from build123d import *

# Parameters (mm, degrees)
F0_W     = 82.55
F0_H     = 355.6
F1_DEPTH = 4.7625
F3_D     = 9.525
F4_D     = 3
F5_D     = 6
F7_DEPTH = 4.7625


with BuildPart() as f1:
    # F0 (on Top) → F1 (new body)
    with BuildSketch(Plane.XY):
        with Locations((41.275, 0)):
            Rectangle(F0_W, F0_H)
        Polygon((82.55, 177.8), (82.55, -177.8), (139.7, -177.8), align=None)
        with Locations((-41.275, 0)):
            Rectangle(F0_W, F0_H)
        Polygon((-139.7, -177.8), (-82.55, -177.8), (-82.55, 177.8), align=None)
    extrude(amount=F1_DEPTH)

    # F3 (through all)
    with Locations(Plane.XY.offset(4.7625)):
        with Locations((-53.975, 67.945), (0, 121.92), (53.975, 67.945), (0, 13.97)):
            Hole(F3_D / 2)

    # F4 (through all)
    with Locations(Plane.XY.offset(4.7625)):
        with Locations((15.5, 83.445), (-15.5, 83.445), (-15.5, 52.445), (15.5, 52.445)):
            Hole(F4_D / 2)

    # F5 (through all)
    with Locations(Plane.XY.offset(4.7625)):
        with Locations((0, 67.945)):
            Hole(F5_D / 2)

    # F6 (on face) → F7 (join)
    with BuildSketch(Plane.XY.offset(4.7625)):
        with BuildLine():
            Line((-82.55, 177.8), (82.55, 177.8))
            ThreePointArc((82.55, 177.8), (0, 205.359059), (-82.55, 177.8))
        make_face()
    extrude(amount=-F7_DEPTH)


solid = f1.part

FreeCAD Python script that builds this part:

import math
import FreeCAD as App
import Part
import Sketcher
Q = App.Units.Quantity

doc = App.newDocument("Part")
body = doc.addObject("PartDesign::Body", "Body")

sketch1 = doc.addObject("Sketcher::SketchObject", "Sketch")
body.addObject(sketch1)
sketch1.AttachmentSupport = (doc.XY_Plane, [""])
sketch1.MapMode = "FlatFace"
sketch1.addGeometry([
    Part.LineSegment(App.Vector(140, -178, 0), App.Vector(83, 178, 0)),
    Part.LineSegment(App.Vector(83, 178, 0), App.Vector(-83, 178, 0)),
    Part.LineSegment(App.Vector(-83, 178, 0), App.Vector(-140, -178, 0)),
    Part.LineSegment(App.Vector(-140, -178, 0), App.Vector(140, -178, 0)),
], False)
sketch1.addConstraint([
    Sketcher.Constraint("Coincident", 0, 2, 1, 1),
    Sketcher.Constraint("Coincident", 1, 2, 2, 1),
    Sketcher.Constraint("Coincident", 2, 2, 3, 1),
    Sketcher.Constraint("Coincident", 3, 2, 0, 1),
    Sketcher.Constraint("Horizontal", 1),
    Sketcher.Constraint("Horizontal", 3),
    Sketcher.Constraint("Equal", 0, 2),
    Sketcher.Constraint("DistanceX", 3, 1, 3, 2, Q("11 in")),
    Sketcher.Constraint("DistanceX", 1, 2, 1, 1, Q("6.5 in")),
    Sketcher.Constraint("DistanceY", -1, 1, 0, 2, Q("7 in")),
    Sketcher.Constraint("DistanceY", 2, 2, -1, 1, Q("7 in")),
    Sketcher.Constraint("DistanceX", 2, 2, -1, 1, Q("5.5 in")),
])
pad1 = doc.addObject("PartDesign::Pad", "Pad")
body.addObject(pad1)
pad1.Profile = sketch1
pad1.Length = Q("0.1875 in")

sketch2 = doc.addObject("Sketcher::SketchObject", "Sketch001")
body.addObject(sketch2)
sketch2.AttachmentSupport = (doc.XY_Plane, [""])
sketch2.MapMode = "FlatFace"
sketch2.AttachmentOffset = App.Placement(App.Vector(0, 0, 0.1875 * 25.4), App.Rotation())
sketch2.addGeometry([
    Part.Circle(App.Vector(-54, 67.9, 0), App.Vector(0, 0, 1), 4.8),
    Part.Circle(App.Vector(0, 121.9, 0), App.Vector(0, 0, 1), 4.8),
    Part.Circle(App.Vector(54, 67.9, 0), App.Vector(0, 0, 1), 4.8),
    Part.Circle(App.Vector(0, 14, 0), App.Vector(0, 0, 1), 4.8),
], False)
sketch2.addConstraint([
    Sketcher.Constraint("Equal", 0, 1),
    Sketcher.Constraint("Equal", 1, 2),
    Sketcher.Constraint("Equal", 2, 3),
    Sketcher.Constraint("Symmetric", 0, 3, 2, 3, -2),
    Sketcher.Constraint("PointOnObject", 1, 3, -2),
    Sketcher.Constraint("PointOnObject", 3, 3, -2),
    Sketcher.Constraint("Diameter", 0, Q("0.375 in")),
    Sketcher.Constraint("DistanceY", -1, 1, 1, 3, Q("4.8 in")),
    Sketcher.Constraint("DistanceY", -1, 1, 3, 3, Q("0.55 in")),
    Sketcher.Constraint("DistanceX", 0, 3, 2, 3, Q("4.25 in")),
    Sketcher.Constraint("DistanceY", -1, 1, 0, 3, Q("2.675 in")),
])
doc.recompute()
hole = doc.addObject("PartDesign::Hole", "Hole")
body.addObject(hole)
hole.Profile = sketch2
hole.ThreadType = "None"
hole.Diameter = Q("0.375 in")
hole.DepthType = "ThroughAll"

sketch3 = doc.addObject("Sketcher::SketchObject", "Sketch002")
body.addObject(sketch3)
sketch3.AttachmentSupport = (doc.XY_Plane, [""])
sketch3.MapMode = "FlatFace"
sketch3.AttachmentOffset = App.Placement(App.Vector(0, 0, 0.1875 * 25.4), App.Rotation())
sketch3.addGeometry([
    Part.Circle(App.Vector(15.5, 83.4, 0), App.Vector(0, 0, 1), 1.5),
    Part.Circle(App.Vector(-15.5, 83.4, 0), App.Vector(0, 0, 1), 1.5),
    Part.Circle(App.Vector(-15.5, 52.4, 0), App.Vector(0, 0, 1), 1.5),
    Part.Circle(App.Vector(15.5, 52.4, 0), App.Vector(0, 0, 1), 1.5),
], False)
sketch3.addConstraint([
    Sketcher.Constraint("Equal", 0, 1),
    Sketcher.Constraint("Equal", 1, 2),
    Sketcher.Constraint("Equal", 2, 3),
    Sketcher.Constraint("Symmetric", 0, 3, 1, 3, -2),
    Sketcher.Constraint("Symmetric", 2, 3, 3, 3, -2),
    Sketcher.Constraint("Vertical", 1, 3, 2, 3),
    Sketcher.Constraint("Diameter", 0, 3.0),
    Sketcher.Constraint("DistanceX", -1, 1, 0, 3, 15.5),
    Sketcher.Constraint("DistanceY", -1, 1, 0, 3, 83.445),
    Sketcher.Constraint("DistanceY", -1, 1, 2, 3, 52.445),
])
doc.recompute()
hole2 = doc.addObject("PartDesign::Hole", "Hole001")
body.addObject(hole2)
hole2.Profile = sketch3
hole2.ThreadType = "None"
hole2.Diameter = 3
hole2.DepthType = "ThroughAll"

sketch4 = doc.addObject("Sketcher::SketchObject", "Sketch003")
body.addObject(sketch4)
sketch4.AttachmentSupport = (doc.XY_Plane, [""])
sketch4.MapMode = "FlatFace"
sketch4.AttachmentOffset = App.Placement(App.Vector(0, 0, 0.1875 * 25.4), App.Rotation())
sketch4.addGeometry(Part.Circle(App.Vector(0, 67.9, 0), App.Vector(0, 0, 1), 3), False)
sketch4.addConstraint([
    Sketcher.Constraint("PointOnObject", 0, 3, -2),
    Sketcher.Constraint("Diameter", 0, 6.0),
    Sketcher.Constraint("DistanceY", -1, 1, 0, 3, Q("2.675 in")),
])
doc.recompute()
hole3 = doc.addObject("PartDesign::Hole", "Hole002")
body.addObject(hole3)
hole3.Profile = sketch4
hole3.ThreadType = "None"
hole3.Diameter = 6
hole3.DepthType = "ThroughAll"

sketch5 = doc.addObject("Sketcher::SketchObject", "Sketch004")
body.addObject(sketch5)
sketch5.AttachmentSupport = (doc.XY_Plane, [""])
sketch5.MapMode = "FlatFace"
sketch5.AttachmentOffset = App.Placement(App.Vector(0, 0, 0.1875 * 25.4), App.Rotation())
sketch5.addGeometry([
    Part.LineSegment(App.Vector(-83, 178, 0), App.Vector(83, 178, 0)),
    Part.ArcOfCircle(Part.Circle(App.Vector(0, 68, 0), App.Vector(0, 0, 1), 137), math.radians(53), math.radians(127)),
], False)
sketch5.addConstraint([
    Sketcher.Constraint("Coincident", 0, 1, 1, 2),
    Sketcher.Constraint("Coincident", 1, 1, 0, 2),
    Sketcher.Constraint("Horizontal", 0),
    Sketcher.Constraint("PointOnObject", 1, 3, -2),
    Sketcher.Constraint("DistanceX", 0, 1, 0, 2, Q("6.5 in")),
    Sketcher.Constraint("DistanceY", -1, 1, 0, 1, Q("7 in")),
    Sketcher.Constraint("DistanceY", -1, 1, 1, 3, Q("2.6750001 in")),
])
pad2 = doc.addObject("PartDesign::Pad", "Pad001")
body.addObject(pad2)
pad2.Profile = sketch5
pad2.Length = Q("0.1875 in")
pad2.Reversed = True

doc.recompute()
